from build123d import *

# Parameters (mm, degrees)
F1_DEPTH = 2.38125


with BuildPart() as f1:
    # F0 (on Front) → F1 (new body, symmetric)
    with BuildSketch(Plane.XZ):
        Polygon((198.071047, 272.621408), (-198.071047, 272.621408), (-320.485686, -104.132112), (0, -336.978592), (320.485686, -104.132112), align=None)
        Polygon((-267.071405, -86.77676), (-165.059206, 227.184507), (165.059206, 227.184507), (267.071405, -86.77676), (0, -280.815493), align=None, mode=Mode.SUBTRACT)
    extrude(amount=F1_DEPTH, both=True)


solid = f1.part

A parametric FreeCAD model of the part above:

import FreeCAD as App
import Part
import Sketcher

V = App.Vector
Q = App.Units.Quantity

doc = App.newDocument("Part")
body = doc.addObject("PartDesign::Body", "Body")

sketch1 = body.newObject("Sketcher::SketchObject", "Sketch")
sketch1.AttachmentSupport = (doc.getObject("XZ_Plane"), [""])
sketch1.MapMode = "FlatFace"
sketch1.addGeometry(Part.LineSegment(V(198.071047, 272.621408, 0), V(-198.071047, 272.621408, 0)), False)
sketch1.addGeometry(Part.LineSegment(V(-198.071047, 272.621408, 0), V(-320.485686, -104.132112, 0)), False)
sketch1.addGeometry(Part.LineSegment(V(-320.485686, -104.132112, 0), V(0, -336.978592, 0)), False)
sketch1.addGeometry(Part.LineSegment(V(0, -336.978592, 0), V(320.485686, -104.132112, 0)), False)
sketch1.addGeometry(Part.LineSegment(V(320.485686, -104.132112, 0), V(198.071047, 272.621408, 0)), False)
sketch1.addGeometry(Part.LineSegment(V(0, -280.815493, 0), V(-267.071405, -86.77676, 0)), False)
sketch1.addGeometry(Part.LineSegment(V(-267.071405, -86.77676, 0), V(-165.059206, 227.184507, 0)), False)
sketch1.addGeometry(Part.LineSegment(V(-165.059206, 227.184507, 0), V(165.059206, 227.184507, 0)), False)
sketch1.addGeometry(Part.LineSegment(V(165.059206, 227.184507, 0), V(267.071405, -86.77676, 0)), False)
sketch1.addGeometry(Part.LineSegment(V(267.071405, -86.77676, 0), V(0, -280.815493, 0)), False)
sketch1.addConstraint(Sketcher.Constraint("Coincident", 0, 2, 1, 1))
sketch1.addConstraint(Sketcher.Constraint("Coincident", 1, 2, 2, 1))
sketch1.addConstraint(Sketcher.Constraint("Coincident", 2, 2, 3, 1))
sketch1.addConstraint(Sketcher.Constraint("Coincident", 3, 2, 4, 1))
sketch1.addConstraint(Sketcher.Constraint("Coincident", 4, 2, 0, 1))
sketch1.addConstraint(Sketcher.Constraint("Coincident", 5, 2, 6, 1))
sketch1.addConstraint(Sketcher.Constraint("Coincident", 6, 2, 7, 1))
sketch1.addConstraint(Sketcher.Constraint("Coincident", 7, 2, 8, 1))
sketch1.addConstraint(Sketcher.Constraint("Coincident", 8, 2, 9, 1))
sketch1.addConstraint(Sketcher.Constraint("Coincident", 9, 2, 5, 1))
sketch1.addConstraint(Sketcher.Constraint("Horizontal", 0))
sketch1.addConstraint(Sketcher.Constraint("Horizontal", 7))
sketch1.addConstraint(Sketcher.Constraint("Symmetric", 1, 2, 3, 2, -2))
sketch1.addConstraint(Sketcher.Constraint("Symmetric", 5, 2, 8, 2, -2))
sketch1.addConstraint(Sketcher.Constraint("PointOnObject", 2, 2, -2))
sketch1.addConstraint(Sketcher.Constraint("PointOnObject", 9, 2, -2))
sketch1.addConstraint(Sketcher.Constraint("Parallel", 2, 5))
sketch1.addConstraint(Sketcher.Constraint("Parallel", 1, 6))
sketch1.addConstraint(Sketcher.Constraint("Parallel", 4, 8))
sketch1.addConstraint(Sketcher.Constraint("Equal", 1, 2))
sketch1.addConstraint(Sketcher.Constraint("Equal", 3, 4))
sketch1.addConstraint(Sketcher.Constraint("Equal", 5, 6))
sketch1.addConstraint(Sketcher.Constraint("Angle", 1, Q("-108 deg")))
sketch1.addConstraint(Sketcher.Constraint("Angle", 2, Q("-36 deg")))
sketch1.addConstraint(Sketcher.Constraint("DistanceY", 2, 2, 0, 2, Q("24 in")))
sketch1.addConstraint(Sketcher.Constraint("DistanceX", 7, 1, 7, 2, Q("330.118412 mm")))
sketch1.addConstraint(Sketcher.Constraint("DistanceY", 6, 2, 0, 2, Q("45.436901 mm")))
sketch1.addConstraint(Sketcher.Constraint("DistanceY", 2, 2, -1, 1, Q("336.978592 mm")))
pad1 = body.newObject("PartDesign::Pad", "Pad")
pad1.Profile = sketch1
pad1.Length = Q("0.1875 in")
pad1.Midplane = True

doc.recompute()
